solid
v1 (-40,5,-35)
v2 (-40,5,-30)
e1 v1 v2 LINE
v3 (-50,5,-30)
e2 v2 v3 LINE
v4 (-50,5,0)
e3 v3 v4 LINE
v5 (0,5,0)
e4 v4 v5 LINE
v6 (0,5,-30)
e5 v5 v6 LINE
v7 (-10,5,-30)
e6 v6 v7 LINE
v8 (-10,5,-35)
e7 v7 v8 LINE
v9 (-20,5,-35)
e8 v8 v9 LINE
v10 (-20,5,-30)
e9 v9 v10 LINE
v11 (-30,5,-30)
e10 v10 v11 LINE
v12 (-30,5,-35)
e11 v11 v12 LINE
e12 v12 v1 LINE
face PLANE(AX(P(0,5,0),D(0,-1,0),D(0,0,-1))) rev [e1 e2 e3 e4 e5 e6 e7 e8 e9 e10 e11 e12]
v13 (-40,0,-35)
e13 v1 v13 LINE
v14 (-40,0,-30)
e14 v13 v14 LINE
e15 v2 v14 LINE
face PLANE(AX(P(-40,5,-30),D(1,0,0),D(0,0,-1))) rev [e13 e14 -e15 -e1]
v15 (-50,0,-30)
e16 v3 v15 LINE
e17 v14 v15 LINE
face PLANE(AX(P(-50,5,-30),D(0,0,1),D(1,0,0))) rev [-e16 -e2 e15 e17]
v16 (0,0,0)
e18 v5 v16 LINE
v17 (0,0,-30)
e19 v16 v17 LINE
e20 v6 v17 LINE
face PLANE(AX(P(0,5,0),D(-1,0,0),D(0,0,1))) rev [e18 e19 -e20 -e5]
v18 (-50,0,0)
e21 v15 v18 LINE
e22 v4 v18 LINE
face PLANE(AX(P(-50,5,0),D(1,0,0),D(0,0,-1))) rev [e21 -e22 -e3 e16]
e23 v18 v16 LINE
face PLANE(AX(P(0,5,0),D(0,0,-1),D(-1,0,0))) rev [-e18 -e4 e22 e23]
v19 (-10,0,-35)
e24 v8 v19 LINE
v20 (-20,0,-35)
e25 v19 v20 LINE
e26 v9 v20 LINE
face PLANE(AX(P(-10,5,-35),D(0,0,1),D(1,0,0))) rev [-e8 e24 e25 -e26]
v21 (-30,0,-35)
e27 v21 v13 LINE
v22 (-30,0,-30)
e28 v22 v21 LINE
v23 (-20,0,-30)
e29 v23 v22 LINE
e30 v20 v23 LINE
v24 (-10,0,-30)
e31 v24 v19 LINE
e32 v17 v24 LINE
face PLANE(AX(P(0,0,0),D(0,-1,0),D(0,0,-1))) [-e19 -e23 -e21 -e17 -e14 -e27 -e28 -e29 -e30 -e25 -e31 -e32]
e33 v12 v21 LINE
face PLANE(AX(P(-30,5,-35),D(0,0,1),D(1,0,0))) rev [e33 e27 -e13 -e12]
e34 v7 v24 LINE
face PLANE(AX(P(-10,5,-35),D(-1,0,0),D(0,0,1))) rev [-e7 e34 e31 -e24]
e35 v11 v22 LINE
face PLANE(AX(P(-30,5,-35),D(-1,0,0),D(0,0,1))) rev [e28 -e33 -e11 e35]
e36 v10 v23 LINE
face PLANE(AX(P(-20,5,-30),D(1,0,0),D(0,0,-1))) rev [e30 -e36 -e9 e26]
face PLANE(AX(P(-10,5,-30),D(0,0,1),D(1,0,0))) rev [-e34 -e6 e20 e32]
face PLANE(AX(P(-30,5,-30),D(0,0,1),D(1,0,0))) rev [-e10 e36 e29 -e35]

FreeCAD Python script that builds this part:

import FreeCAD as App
import Part
import Sketcher
from FreeCAD import Vector


def add_polygon(sketch, points):
    """Adds a closed chain of lines whose ends are joined by coincident constraints."""
    first, n = sketch.GeometryCount, len(points)
    for a, b in zip(points, points[1:] + points[:1]):
        sketch.addGeometry(Part.LineSegment(App.Vector(*a, 0), App.Vector(*b, 0)), False)
    for i in range(n):
        sketch.addConstraint(Sketcher.Constraint("Coincident", first + i, 2, first + (i + 1) % n, 1))

doc = App.newDocument("Part")
body = doc.addObject("PartDesign::Body", "Body")

sketch1 = body.newObject("Sketcher::SketchObject", "Sketch")
sketch1.AttachmentSupport = (doc.getObject("XZ_Plane"), [""])
sketch1.MapMode = "FlatFace"
add_polygon(sketch1, [(-30, -35), (-40, -35), (-40, -30), (-50, -30), (-50, 0), (0, 0), (0, -30), (-10, -30), (-10, -35), (-20, -35), (-20, -30), (-30, -30)])
sketch1.addConstraint(Sketcher.Constraint("Horizontal", 0))
sketch1.addConstraint(Sketcher.Constraint("Vertical", 1))
sketch1.addConstraint(Sketcher.Constraint("Horizontal", 2))
sketch1.addConstraint(Sketcher.Constraint("Vertical", 3))
sketch1.addConstraint(Sketcher.Constraint("Horizontal", 4))
sketch1.addConstraint(Sketcher.Constraint("Vertical", 5))
sketch1.addConstraint(Sketcher.Constraint("Horizontal", 6))
sketch1.addConstraint(Sketcher.Constraint("Vertical", 7))
sketch1.addConstraint(Sketcher.Constraint("Horizontal", 8))
sketch1.addConstraint(Sketcher.Constraint("Vertical", 9))
sketch1.addConstraint(Sketcher.Constraint("Horizontal", 10))
sketch1.addConstraint(Sketcher.Constraint("Vertical", 11))
sketch1.addConstraint(Sketcher.Constraint("Coincident", 4, 2, -1, 1))
sketch1.addConstraint(Sketcher.Constraint("Horizontal", 2, 2, 5, 2))
sketch1.addConstraint(Sketcher.Constraint("Horizontal", 0, 2, 7, 2))
sketch1.addConstraint(Sketcher.Constraint("Horizontal", 6, 2, 9, 2))
sketch1.addConstraint(Sketcher.Constraint("Equal", 0, 2))
sketch1.addConstraint(Sketcher.Constraint("Equal", 2, 6))
sketch1.addConstraint(Sketcher.Constraint("Equal", 6, 8))
sketch1.addConstraint(Sketcher.Constraint("Equal", 8, 10))
sketch1.addConstraint(Sketcher.Constraint("DistanceX", 0, 2, 0, 1, 10.0))
sketch1.addConstraint(Sketcher.Constraint("DistanceY", 1, 1, 1, 2, 5.0))
sketch1.addConstraint(Sketcher.Constraint("DistanceY", 3, 1, 3, 2, 30.0))
pad1 = body.newObject("PartDesign::Pad", "Pad")
pad1.Profile = sketch1
pad1.Length = 5
pad1.Reversed = True

doc.recompute()
